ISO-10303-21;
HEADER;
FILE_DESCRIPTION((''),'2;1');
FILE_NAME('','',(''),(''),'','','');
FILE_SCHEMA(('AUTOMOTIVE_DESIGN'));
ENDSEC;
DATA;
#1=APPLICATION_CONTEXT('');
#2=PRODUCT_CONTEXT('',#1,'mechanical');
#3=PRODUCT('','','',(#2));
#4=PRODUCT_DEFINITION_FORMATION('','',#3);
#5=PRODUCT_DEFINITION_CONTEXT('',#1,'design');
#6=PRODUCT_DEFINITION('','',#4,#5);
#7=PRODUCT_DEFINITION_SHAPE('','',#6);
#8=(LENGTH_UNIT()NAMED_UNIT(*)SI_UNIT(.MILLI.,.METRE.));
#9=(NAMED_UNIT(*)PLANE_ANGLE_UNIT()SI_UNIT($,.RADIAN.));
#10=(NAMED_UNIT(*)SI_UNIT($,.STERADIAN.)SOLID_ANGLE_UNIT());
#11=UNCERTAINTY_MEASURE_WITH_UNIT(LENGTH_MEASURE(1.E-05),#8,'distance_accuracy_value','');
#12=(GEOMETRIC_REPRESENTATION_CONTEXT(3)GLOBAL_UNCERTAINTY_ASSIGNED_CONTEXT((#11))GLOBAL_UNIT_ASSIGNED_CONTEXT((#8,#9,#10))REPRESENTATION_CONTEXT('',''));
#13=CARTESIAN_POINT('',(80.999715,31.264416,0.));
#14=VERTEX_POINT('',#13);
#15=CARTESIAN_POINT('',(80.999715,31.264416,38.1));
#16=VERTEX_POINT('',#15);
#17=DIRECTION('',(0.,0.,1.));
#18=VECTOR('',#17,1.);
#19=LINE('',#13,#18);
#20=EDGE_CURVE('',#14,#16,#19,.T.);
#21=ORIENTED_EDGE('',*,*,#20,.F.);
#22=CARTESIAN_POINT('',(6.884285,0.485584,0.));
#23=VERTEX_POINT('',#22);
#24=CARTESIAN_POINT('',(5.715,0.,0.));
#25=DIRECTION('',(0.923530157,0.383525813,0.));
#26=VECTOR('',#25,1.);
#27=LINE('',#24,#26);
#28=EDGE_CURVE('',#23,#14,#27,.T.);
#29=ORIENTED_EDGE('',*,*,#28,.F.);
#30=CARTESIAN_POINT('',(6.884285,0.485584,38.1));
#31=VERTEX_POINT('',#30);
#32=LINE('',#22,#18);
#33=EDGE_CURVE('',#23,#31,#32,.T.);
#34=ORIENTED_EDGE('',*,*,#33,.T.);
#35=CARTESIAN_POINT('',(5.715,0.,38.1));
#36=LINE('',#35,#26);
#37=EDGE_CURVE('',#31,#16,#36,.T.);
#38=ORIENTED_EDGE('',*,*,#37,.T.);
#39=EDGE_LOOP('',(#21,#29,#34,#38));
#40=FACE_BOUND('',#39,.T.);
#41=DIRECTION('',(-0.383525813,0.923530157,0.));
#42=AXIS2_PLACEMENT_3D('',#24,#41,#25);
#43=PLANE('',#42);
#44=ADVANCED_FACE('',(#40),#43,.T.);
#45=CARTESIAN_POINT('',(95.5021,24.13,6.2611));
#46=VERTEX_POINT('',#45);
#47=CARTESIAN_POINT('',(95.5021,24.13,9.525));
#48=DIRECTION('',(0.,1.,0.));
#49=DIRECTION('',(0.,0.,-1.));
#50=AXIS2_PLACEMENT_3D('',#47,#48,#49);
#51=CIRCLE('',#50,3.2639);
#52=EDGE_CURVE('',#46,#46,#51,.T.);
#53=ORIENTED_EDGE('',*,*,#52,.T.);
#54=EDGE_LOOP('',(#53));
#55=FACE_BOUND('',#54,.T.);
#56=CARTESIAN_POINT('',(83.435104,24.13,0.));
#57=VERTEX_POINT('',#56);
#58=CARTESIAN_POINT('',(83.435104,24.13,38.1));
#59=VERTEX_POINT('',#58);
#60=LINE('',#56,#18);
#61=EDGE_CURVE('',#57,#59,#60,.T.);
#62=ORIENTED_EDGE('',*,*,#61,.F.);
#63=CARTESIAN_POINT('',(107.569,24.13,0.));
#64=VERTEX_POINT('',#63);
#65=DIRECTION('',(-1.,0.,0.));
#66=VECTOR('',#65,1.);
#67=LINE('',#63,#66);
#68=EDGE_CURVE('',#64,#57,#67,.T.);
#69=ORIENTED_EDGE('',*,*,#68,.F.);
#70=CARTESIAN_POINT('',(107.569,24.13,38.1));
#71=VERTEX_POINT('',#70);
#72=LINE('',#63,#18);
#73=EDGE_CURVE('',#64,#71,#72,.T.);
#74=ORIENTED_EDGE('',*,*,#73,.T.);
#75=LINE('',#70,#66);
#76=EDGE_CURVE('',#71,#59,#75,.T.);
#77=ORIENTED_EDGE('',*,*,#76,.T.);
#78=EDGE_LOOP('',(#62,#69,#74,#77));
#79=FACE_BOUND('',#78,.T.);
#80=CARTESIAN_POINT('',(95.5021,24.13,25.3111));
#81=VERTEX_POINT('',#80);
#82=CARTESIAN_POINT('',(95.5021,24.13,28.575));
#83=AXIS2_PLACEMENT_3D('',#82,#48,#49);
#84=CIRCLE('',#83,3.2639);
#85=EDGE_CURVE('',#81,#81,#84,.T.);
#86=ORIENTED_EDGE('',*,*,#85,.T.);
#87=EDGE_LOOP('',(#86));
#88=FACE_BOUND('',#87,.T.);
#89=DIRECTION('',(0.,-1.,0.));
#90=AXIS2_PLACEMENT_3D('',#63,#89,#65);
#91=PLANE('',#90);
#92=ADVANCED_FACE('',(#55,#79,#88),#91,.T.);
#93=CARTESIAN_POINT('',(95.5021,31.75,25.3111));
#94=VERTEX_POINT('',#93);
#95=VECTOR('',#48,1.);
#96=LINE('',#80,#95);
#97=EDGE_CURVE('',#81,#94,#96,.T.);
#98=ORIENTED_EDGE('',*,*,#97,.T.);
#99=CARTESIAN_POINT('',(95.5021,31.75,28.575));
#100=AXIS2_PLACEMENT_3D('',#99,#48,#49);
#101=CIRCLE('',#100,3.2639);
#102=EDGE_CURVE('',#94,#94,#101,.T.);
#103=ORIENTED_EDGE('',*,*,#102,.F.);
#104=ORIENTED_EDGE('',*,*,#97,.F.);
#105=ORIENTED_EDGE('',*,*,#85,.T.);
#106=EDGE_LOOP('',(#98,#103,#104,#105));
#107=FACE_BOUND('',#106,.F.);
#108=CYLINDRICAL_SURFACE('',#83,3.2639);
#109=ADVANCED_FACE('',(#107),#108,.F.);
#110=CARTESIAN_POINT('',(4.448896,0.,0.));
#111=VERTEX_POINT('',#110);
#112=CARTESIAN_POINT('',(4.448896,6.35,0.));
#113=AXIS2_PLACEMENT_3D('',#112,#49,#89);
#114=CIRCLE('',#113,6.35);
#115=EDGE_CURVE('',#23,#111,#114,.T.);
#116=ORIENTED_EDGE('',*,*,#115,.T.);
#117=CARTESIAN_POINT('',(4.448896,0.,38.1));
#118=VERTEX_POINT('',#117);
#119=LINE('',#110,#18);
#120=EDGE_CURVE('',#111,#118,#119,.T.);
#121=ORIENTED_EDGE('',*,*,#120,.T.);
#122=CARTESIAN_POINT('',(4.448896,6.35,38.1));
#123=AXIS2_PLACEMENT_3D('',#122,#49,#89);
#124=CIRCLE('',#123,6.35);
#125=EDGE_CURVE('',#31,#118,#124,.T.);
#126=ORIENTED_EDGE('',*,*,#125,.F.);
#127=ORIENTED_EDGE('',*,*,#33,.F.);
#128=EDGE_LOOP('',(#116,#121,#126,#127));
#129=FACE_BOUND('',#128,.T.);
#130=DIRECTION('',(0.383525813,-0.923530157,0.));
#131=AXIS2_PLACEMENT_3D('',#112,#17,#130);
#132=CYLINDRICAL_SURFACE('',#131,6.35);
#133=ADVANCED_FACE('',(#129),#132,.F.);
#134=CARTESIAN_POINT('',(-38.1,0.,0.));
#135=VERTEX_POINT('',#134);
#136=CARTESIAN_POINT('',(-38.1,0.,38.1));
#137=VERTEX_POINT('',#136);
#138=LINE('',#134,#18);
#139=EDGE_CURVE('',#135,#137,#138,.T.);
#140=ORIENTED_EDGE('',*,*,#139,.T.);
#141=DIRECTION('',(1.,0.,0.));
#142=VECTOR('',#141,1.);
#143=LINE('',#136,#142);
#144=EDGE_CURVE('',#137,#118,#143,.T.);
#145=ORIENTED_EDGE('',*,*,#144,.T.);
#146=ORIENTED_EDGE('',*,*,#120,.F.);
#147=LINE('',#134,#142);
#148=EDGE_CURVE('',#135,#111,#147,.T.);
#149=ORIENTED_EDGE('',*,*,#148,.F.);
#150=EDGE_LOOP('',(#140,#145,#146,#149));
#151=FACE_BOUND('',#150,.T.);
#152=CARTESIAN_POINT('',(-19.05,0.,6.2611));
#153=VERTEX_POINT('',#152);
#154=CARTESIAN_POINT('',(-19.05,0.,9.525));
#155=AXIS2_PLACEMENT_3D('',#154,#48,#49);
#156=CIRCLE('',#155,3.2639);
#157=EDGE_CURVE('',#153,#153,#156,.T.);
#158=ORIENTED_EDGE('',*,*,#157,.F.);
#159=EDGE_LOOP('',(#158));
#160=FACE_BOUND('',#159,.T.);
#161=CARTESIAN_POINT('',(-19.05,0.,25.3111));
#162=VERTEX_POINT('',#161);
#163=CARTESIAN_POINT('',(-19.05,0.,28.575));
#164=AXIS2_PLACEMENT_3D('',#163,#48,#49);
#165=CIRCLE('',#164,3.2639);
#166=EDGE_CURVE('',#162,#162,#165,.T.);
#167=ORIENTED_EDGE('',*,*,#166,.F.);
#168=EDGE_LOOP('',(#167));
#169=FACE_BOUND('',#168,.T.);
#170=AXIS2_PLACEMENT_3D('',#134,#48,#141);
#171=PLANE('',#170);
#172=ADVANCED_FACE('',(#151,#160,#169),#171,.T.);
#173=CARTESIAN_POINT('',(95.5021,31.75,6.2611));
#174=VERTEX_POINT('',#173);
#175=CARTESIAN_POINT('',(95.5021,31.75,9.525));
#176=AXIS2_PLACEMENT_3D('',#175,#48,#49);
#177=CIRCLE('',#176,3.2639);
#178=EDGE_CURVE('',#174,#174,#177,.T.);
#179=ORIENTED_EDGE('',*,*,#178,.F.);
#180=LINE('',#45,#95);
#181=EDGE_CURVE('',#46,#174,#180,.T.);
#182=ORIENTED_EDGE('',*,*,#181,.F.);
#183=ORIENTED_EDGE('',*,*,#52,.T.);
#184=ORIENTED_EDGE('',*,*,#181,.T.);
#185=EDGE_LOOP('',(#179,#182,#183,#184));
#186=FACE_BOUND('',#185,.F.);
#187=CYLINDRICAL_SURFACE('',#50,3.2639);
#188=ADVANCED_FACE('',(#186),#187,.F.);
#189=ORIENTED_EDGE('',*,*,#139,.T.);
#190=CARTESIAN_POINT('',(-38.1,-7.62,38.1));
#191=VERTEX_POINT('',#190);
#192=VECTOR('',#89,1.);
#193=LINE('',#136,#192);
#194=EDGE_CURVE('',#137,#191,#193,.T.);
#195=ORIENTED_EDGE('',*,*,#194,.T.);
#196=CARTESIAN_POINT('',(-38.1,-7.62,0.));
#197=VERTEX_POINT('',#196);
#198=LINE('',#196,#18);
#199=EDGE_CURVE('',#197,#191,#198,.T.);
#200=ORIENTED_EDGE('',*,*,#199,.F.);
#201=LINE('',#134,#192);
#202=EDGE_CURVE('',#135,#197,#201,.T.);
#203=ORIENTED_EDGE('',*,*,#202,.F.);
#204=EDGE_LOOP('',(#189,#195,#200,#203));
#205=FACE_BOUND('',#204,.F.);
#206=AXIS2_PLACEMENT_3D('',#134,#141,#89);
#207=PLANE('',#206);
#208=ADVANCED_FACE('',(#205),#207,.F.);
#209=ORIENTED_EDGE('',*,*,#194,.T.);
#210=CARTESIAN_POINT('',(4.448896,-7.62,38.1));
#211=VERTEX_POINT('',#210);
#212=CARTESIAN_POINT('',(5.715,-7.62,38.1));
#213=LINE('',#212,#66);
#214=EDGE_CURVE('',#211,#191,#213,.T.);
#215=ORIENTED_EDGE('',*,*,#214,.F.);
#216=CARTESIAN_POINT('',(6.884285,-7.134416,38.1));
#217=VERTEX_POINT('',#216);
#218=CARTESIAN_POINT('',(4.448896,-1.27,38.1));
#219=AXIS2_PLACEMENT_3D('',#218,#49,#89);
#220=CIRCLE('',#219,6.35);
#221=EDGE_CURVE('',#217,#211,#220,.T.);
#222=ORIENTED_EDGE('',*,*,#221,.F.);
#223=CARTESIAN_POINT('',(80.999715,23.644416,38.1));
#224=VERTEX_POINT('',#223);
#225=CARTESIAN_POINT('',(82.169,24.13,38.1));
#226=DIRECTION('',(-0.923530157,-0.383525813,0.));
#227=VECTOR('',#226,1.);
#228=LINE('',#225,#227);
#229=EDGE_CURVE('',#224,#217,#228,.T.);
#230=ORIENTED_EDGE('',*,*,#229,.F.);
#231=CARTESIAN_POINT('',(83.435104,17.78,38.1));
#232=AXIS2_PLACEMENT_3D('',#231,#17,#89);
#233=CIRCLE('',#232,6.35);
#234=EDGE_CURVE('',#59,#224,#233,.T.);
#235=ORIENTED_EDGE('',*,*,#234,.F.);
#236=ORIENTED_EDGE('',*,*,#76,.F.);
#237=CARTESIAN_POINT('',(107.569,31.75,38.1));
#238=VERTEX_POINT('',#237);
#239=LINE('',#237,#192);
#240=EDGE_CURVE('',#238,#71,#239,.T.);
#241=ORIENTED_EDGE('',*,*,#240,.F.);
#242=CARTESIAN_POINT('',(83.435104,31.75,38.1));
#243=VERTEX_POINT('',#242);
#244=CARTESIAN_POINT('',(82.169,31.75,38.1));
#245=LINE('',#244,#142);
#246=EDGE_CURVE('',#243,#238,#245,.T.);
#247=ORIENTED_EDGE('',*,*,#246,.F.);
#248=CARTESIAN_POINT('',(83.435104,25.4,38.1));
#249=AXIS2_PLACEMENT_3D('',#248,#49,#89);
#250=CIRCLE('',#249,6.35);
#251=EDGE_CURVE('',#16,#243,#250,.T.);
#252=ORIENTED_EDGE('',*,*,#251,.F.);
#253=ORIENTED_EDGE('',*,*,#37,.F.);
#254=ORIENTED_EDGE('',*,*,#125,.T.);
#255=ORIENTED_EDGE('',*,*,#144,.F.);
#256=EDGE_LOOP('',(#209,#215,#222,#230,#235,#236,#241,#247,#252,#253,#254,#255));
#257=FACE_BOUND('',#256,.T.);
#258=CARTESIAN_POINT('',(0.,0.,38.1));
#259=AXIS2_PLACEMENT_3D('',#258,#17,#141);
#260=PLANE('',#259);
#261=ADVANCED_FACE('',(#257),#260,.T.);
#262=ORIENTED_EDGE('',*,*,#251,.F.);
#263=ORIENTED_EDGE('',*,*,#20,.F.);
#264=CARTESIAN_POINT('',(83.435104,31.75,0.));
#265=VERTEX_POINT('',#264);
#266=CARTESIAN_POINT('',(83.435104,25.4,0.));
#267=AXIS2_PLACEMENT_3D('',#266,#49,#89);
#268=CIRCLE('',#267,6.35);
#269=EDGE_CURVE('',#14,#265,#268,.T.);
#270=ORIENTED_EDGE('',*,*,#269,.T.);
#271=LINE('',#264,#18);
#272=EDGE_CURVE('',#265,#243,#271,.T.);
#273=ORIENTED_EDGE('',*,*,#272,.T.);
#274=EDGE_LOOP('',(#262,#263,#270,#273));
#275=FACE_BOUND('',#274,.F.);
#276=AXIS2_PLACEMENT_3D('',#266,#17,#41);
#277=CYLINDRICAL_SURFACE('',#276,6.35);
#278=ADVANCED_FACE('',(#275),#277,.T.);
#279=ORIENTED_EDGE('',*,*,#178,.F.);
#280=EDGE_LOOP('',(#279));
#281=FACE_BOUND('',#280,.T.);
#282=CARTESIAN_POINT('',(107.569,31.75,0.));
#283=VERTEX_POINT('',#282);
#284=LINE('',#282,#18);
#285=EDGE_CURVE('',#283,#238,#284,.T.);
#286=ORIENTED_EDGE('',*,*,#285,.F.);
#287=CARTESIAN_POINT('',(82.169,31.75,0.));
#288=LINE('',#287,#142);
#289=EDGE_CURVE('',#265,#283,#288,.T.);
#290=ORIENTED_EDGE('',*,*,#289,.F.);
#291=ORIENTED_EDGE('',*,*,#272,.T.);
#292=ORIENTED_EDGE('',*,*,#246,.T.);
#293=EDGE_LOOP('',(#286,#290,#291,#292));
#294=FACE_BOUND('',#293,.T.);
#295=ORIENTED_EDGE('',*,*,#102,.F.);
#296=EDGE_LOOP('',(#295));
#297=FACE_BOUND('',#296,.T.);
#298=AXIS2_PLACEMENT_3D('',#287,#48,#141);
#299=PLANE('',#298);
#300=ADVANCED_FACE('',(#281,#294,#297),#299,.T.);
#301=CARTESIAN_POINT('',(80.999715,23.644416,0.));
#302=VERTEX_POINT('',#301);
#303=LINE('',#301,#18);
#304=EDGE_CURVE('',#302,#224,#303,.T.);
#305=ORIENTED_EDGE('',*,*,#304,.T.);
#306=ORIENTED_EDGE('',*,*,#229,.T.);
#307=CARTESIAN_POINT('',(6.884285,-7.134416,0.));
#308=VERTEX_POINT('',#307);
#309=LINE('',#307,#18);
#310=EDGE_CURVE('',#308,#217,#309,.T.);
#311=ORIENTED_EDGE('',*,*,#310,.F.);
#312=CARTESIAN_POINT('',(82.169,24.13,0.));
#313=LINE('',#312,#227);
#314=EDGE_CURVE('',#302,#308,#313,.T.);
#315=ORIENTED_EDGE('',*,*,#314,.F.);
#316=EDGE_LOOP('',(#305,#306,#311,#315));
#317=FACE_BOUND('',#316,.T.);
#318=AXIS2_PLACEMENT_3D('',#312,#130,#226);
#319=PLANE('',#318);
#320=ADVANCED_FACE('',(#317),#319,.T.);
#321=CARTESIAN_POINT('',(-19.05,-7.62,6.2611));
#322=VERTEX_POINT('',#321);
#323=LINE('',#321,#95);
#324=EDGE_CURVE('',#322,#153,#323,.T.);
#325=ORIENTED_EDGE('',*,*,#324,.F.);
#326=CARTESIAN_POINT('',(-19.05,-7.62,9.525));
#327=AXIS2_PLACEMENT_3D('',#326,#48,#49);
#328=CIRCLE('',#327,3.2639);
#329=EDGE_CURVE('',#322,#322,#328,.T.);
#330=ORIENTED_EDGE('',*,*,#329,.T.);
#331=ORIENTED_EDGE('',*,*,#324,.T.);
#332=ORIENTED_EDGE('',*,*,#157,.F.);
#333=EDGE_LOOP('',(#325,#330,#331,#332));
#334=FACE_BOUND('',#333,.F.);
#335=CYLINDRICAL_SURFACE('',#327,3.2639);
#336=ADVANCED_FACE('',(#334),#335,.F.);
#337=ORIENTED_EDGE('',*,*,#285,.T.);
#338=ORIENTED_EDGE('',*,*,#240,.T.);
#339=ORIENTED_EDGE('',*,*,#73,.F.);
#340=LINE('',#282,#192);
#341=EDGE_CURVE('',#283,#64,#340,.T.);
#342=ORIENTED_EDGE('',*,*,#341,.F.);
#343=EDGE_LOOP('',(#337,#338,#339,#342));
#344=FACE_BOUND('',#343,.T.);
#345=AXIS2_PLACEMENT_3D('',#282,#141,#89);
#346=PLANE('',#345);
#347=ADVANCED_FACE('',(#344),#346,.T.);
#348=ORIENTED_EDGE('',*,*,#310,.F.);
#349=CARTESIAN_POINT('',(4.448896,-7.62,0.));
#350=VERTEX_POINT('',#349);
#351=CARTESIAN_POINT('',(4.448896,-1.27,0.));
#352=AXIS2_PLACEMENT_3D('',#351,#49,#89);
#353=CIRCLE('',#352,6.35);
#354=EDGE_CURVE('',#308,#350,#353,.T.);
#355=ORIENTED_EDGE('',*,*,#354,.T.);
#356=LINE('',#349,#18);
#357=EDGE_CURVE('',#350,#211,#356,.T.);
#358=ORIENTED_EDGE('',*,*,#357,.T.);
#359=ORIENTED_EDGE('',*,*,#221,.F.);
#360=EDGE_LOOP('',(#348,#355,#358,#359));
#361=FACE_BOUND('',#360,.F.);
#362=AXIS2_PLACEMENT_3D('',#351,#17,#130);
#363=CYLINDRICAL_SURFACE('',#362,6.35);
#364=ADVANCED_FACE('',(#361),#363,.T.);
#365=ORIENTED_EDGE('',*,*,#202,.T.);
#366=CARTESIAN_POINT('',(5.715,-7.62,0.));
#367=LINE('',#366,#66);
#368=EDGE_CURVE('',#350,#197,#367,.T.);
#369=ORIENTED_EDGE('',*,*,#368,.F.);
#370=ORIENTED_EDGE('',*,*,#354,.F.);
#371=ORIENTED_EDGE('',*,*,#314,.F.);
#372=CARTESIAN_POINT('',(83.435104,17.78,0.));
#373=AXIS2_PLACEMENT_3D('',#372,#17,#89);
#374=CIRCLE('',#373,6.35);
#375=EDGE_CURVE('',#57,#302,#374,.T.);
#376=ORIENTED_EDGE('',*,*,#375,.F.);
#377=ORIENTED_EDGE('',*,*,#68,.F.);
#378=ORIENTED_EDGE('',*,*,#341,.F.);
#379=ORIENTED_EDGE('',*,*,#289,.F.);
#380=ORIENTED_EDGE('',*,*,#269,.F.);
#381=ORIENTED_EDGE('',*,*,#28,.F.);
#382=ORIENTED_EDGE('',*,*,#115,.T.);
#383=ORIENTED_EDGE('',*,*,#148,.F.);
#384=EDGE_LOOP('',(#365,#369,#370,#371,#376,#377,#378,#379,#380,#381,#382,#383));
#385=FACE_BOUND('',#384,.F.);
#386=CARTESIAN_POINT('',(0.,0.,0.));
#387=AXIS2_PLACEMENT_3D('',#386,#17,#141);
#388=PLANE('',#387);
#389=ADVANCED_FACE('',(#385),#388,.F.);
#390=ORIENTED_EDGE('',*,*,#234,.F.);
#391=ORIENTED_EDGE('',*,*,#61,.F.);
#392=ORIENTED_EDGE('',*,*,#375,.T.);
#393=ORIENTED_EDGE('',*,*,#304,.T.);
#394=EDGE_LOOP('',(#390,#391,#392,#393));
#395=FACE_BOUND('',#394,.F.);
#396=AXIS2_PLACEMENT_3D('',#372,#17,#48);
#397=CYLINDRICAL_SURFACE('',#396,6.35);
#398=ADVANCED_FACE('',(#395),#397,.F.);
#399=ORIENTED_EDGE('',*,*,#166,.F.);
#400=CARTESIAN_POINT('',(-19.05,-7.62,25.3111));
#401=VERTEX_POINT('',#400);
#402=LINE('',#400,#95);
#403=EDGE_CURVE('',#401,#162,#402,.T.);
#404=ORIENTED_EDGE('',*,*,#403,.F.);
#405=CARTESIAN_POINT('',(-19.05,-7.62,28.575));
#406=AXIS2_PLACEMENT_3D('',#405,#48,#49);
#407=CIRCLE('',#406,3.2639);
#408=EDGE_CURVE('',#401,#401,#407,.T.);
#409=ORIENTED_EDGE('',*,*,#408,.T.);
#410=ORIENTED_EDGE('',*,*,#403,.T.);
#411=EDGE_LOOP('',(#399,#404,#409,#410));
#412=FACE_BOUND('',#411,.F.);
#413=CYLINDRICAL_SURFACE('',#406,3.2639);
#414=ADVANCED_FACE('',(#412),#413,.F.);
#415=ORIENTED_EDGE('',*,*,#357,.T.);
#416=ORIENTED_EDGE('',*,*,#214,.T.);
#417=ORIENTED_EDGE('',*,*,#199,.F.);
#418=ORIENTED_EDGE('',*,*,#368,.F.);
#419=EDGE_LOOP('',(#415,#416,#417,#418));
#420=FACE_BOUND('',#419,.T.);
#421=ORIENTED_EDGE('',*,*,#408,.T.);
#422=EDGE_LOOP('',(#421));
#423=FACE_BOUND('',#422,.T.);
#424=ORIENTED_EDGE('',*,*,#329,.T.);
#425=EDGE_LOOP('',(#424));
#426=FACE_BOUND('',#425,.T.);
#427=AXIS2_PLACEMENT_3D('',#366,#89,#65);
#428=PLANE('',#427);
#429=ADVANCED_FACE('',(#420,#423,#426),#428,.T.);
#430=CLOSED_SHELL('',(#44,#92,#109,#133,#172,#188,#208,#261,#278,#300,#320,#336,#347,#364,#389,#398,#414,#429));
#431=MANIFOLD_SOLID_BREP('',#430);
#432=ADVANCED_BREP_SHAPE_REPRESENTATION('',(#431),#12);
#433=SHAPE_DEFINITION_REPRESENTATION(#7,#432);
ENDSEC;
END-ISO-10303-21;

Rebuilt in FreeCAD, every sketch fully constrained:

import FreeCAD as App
import Part
import Sketcher

V = App.Vector
Q = App.Units.Quantity


def edges_at(feature, points):
    """Names of the edges that pass closest to the given points."""
    edges = feature.Shape.Edges
    near = lambda p: min(range(len(edges)), key=lambda i: edges[i].distToShape(Part.Vertex(*p))[0])
    return sorted({f"Edge{near(p) + 1}" for p in points})

doc = App.newDocument("Part")
params = doc.addObject("Spreadsheet::Sheet", "Params")
for row, (alias, value) in enumerate([
    ("sketch1_width", "1 in"),
    ("sketch1_height", "0.3 in"),
    ("sketch1_width2", "1.725 in"),
    ("pad1_length", "1.5 in"),
    ("fillet_radius", "0.25 in"),
    ("sketch2_diameter", "0.257 in"),
    ("hole_diameter", "0.257 in"),
    ("sketch3_diameter", "0.257 in"),
    ("hole2_diameter", "0.257 in"),
], start=1):
    params.set(f"A{row}", alias)
    params.set(f"B{row}", "=" + value)
    params.setAlias(f"B{row}", alias)

body = doc.addObject("PartDesign::Body", "Body")

# Sketch on XY plane
sketch1 = body.newObject("Sketcher::SketchObject", "Sketch")
sketch1.AttachmentSupport = (doc.getObject("XY_Plane"), [""])
sketch1.MapMode = "FlatFace"
sketch1.addGeometry([
    Part.LineSegment(V(82.169, 31.75, 0), V(5.715, 0, 0)),  # 0
    Part.LineSegment(V(5.715, 0, 0), V(-38.1, 0, 0)),  # 1
    Part.LineSegment(V(-38.1, 0, 0), V(-38.1, -7.62, 0)),  # 2
    Part.LineSegment(V(-38.1, -7.62, 0), V(5.715, -7.62, 0)),  # 3
    Part.LineSegment(V(5.715, -7.62, 0), V(82.169, 24.13, 0)),  # 4
    Part.LineSegment(V(82.169, 24.13, 0), V(107.569, 24.13, 0)),  # 5
    Part.LineSegment(V(107.569, 24.13, 0), V(107.569, 31.75, 0)),  # 6
    Part.LineSegment(V(107.569, 31.75, 0), V(82.169, 31.75, 0)),  # 7
], False)
sketch1.addConstraint([
    Sketcher.Constraint("Coincident", 0, 2, 1, 1),
    Sketcher.Constraint("Coincident", 1, 2, 2, 1),
    Sketcher.Constraint("Coincident", 2, 2, 3, 1),
    Sketcher.Constraint("Coincident", 3, 2, 4, 1),
    Sketcher.Constraint("Coincident", 4, 2, 5, 1),
    Sketcher.Constraint("Coincident", 5, 2, 6, 1),
    Sketcher.Constraint("Coincident", 6, 2, 7, 1),
    Sketcher.Constraint("Coincident", 7, 2, 0, 1),
    Sketcher.Constraint("Horizontal", 1),
    Sketcher.Constraint("Vertical", 2),
    Sketcher.Constraint("Horizontal", 3),
    Sketcher.Constraint("Horizontal", 5),
    Sketcher.Constraint("Vertical", 6),
    Sketcher.Constraint("Horizontal", 7),
    Sketcher.Constraint("PointOnObject", 0, 2, -1),
    Sketcher.Constraint("Parallel", 0, 4),
    Sketcher.Constraint("Vertical", 0, 2, 3, 2),
    Sketcher.Constraint("Vertical", 4, 2, 7, 2),
    Sketcher.Constraint("DistanceX", 5, 1, 5, 2, Q("1 in")),
    Sketcher.Constraint("DistanceY", 2, 2, 2, 1, Q("0.3 in")),
    Sketcher.Constraint("DistanceX", 1, 2, -1, 1, Q("1.5 in")),
    Sketcher.Constraint("DistanceX", 1, 2, 1, 1, Q("1.725 in")),
    Sketcher.Constraint("DistanceY", -1, 1, 6, 2, Q("1.25 in")),
    Sketcher.Constraint("DistanceX", 0, 2, 4, 2, Q("3.01 in")),
])
sketch1.setExpression("Constraints[18]", "Params.sketch1_width")
sketch1.setExpression("Constraints[19]", "Params.sketch1_height")
sketch1.setExpression("Constraints[21]", "Params.sketch1_width2")
pad1 = body.newObject("PartDesign::Pad", "Pad")
pad1.Profile = sketch1
pad1.setExpression("Length", "Params.pad1_length")
doc.recompute()

fillet = body.newObject("PartDesign::Fillet", "Fillet")
fillet.Base = (pad1, edges_at(pad1, [
    (5.715, -7.62, 19.05),
    (5.715, 0, 19.05),
    (82.169, 31.75, 19.05),
    (82.169, 24.13, 19.05),
]))
fillet.setExpression("Radius", "Params.fillet_radius")

# Sketch on XZ plane
sketch2 = body.newObject("Sketcher::SketchObject", "Sketch001")
sketch2.AttachmentSupport = (doc.getObject("XZ_Plane"), [""])
sketch2.MapMode = "FlatFace"
sketch2.AttachmentOffset = App.Placement(V(0, 0, -0.95 * 25.4), App.Rotation())
sketch2.addGeometry([
    Part.Circle(V(95.5021, 28.575, 0), V(0, 0, 1), 3.2639),
    Part.Circle(V(95.5021, 9.525, 0), V(0, 0, 1), 3.2639),
], False)
sketch2.addConstraint([
    Sketcher.Constraint("Equal", 0, 1),
    Sketcher.Constraint("Vertical", 0, 3, 1, 3),
    Sketcher.Constraint("Diameter", 0, Q("0.257 in")),
    Sketcher.Constraint("DistanceY", 1, 3, 0, 3, Q("0.75 in")),
    Sketcher.Constraint("DistanceY", -1, 1, 0, 3, Q("1.125 in")),
    Sketcher.Constraint("DistanceX", -1, 1, 0, 3, 95.502),
])
sketch2.setExpression("Constraints[2]", "Params.sketch2_diameter")
doc.recompute()
hole = body.newObject("PartDesign::Hole", "Hole")
hole.Profile = sketch2
hole.ThreadType = "None"
hole.setExpression("Diameter", "Params.hole_diameter")
hole.DepthType = "ThroughAll"

# Sketch on XZ plane
sketch3 = body.newObject("Sketcher::SketchObject", "Sketch002")
sketch3.AttachmentSupport = (doc.getObject("XZ_Plane"), [""])
sketch3.MapMode = "FlatFace"
sketch3.AttachmentOffset = App.Placement(V(0, 0, 0.3 * 25.4), App.Rotation())
sketch3.addGeometry([
    Part.Circle(V(-19.05, 28.575, 0), V(0, 0, 1), 3.2639),
    Part.Circle(V(-19.05, 9.525, 0), V(0, 0, 1), 3.2639),
], False)
sketch3.addConstraint([
    Sketcher.Constraint("Equal", 0, 1),
    Sketcher.Constraint("Vertical", 0, 3, 1, 3),
    Sketcher.Constraint("Diameter", 0, Q("0.257 in")),
    Sketcher.Constraint("DistanceX", 0, 3, -1, 1, Q("0.75 in")),
    Sketcher.Constraint("DistanceY", 1, 3, 0, 3, Q("0.75 in")),
    Sketcher.Constraint("DistanceY", -1, 1, 0, 3, Q("1.125 in")),
])
sketch3.setExpression("Constraints[2]", "Params.sketch3_diameter")
doc.recompute()
hole2 = body.newObject("PartDesign::Hole", "Hole001")
hole2.Profile = sketch3
hole2.ThreadType = "None"
hole2.setExpression("Diameter", "Params.hole2_diameter")
hole2.DepthType = "ThroughAll"

doc.recompute()
